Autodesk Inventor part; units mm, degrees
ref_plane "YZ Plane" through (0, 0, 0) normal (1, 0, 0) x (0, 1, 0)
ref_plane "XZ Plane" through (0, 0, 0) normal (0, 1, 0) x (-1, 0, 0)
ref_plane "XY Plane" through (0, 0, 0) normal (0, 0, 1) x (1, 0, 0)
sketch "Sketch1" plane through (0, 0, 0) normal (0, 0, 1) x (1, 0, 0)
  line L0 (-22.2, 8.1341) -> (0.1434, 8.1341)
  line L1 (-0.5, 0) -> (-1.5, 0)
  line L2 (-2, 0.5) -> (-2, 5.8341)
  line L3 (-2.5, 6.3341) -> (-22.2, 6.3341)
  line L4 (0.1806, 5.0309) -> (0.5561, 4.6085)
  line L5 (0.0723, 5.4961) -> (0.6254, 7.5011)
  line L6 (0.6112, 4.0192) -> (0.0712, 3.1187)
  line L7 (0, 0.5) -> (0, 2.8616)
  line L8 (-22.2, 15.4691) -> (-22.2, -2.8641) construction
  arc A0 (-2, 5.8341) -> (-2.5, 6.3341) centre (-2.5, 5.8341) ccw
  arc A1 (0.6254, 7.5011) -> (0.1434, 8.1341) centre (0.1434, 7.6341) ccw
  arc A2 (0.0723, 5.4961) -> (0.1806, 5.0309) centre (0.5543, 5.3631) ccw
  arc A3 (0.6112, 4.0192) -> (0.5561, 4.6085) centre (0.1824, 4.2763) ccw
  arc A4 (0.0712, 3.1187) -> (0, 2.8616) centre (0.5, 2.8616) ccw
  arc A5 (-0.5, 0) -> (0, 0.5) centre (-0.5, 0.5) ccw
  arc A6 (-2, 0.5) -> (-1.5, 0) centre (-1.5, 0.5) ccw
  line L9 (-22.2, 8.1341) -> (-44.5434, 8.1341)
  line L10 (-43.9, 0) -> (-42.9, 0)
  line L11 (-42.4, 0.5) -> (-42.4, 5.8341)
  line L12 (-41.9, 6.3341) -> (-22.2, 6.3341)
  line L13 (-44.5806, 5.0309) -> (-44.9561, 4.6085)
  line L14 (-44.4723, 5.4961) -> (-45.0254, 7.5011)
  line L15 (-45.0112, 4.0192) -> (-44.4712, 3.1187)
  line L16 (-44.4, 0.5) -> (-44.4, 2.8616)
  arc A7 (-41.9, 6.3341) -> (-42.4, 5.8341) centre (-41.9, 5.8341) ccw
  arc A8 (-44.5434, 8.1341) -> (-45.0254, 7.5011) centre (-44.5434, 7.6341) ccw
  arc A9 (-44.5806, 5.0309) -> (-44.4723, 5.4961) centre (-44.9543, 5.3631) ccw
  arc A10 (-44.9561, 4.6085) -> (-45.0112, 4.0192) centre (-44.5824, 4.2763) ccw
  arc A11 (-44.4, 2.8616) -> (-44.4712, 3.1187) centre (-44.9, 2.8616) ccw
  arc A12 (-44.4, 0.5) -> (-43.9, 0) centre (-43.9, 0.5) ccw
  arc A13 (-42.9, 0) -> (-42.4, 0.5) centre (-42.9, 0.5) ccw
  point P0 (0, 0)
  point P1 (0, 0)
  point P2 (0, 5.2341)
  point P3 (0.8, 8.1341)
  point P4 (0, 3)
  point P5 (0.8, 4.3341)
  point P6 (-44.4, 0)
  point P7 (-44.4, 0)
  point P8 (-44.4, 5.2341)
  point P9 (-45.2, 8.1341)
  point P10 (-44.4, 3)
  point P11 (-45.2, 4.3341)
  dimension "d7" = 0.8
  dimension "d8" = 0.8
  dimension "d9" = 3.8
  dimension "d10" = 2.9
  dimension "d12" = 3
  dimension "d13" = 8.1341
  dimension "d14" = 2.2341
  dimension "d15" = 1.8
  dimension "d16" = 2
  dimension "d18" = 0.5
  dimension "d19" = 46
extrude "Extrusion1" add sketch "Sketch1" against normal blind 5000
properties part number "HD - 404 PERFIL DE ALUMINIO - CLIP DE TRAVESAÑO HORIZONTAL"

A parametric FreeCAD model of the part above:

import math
import FreeCAD as App
import Part
import Sketcher

V = App.Vector
Q = App.Units.Quantity

doc = App.newDocument("Part")
params = doc.addObject("Spreadsheet::Sheet", "Params")
for row, (alias, value) in enumerate([
    ("sketch1_radius", "0.5 mm"),
    ("sketch1_width", "39.4 mm"),
    ("sketch1_length", "2.08 mm"),
    ("sketch1_length2", "1.05 mm"),
    ("pad1_length", "5000 mm"),
], start=1):
    params.set(f"A{row}", alias)
    params.set(f"B{row}", "=" + value)
    params.setAlias(f"B{row}", alias)

body = doc.addObject("PartDesign::Body", "Body")

sketch1 = doc.addObject("Sketcher::SketchObject", "Sketch")
body.addObject(sketch1)
sketch1.AttachmentSupport = (doc.XY_Plane, [""])
sketch1.MapMode = "FlatFace"
sketch1.addGeometry([
    Part.LineSegment(V(0.14, 8.13, 0), V(-44.54, 8.13, 0)),
    Part.ArcOfCircle(Part.Circle(V(-44.54, 7.63, 0), V(0, 0, 1), 0.5), math.radians(90), math.radians(195)),
    Part.LineSegment(V(-45.03, 7.5, 0), V(-44.47, 5.5, 0)),
    Part.ArcOfCircle(Part.Circle(V(-44.95, 5.36, 0), V(0, 0, 1), 0.5), math.radians(-42), math.radians(15)),
    Part.LineSegment(V(-44.58, 5.03, 0), V(-44.96, 4.61, 0)),
    Part.ArcOfCircle(Part.Circle(V(-44.58, 4.28, 0), V(0, 0, 1), 0.5), math.radians(138), math.radians(211)),
    Part.LineSegment(V(-45.01, 4.02, 0), V(-44.47, 3.12, 0)),
    Part.ArcOfCircle(Part.Circle(V(-44.9, 2.86, 0), V(0, 0, 1), 0.5), math.radians(0), math.radians(31)),
    Part.LineSegment(V(-44.4, 2.86, 0), V(-44.4, 0.5, 0)),
    Part.ArcOfCircle(Part.Circle(V(-43.9, 0.5, 0), V(0, 0, 1), 0.5), math.radians(180), math.radians(270)),
    Part.LineSegment(V(-43.9, 0, 0), V(-42.9, 0, 0)),
    Part.ArcOfCircle(Part.Circle(V(-42.9, 0.5, 0), V(0, 0, 1), 0.5), math.radians(-90), math.radians(0)),
    Part.LineSegment(V(-42.4, 0.5, 0), V(-42.4, 5.83, 0)),
    Part.ArcOfCircle(Part.Circle(V(-41.9, 5.83, 0), V(0, 0, 1), 0.5), math.radians(90), math.radians(180)),
    Part.LineSegment(V(-41.9, 6.33, 0), V(-2.5, 6.33, 0)),
    Part.ArcOfCircle(Part.Circle(V(-2.5, 5.83, 0), V(0, 0, 1), 0.5), math.radians(0), math.radians(90)),
    Part.LineSegment(V(-2, 5.83, 0), V(-2, 0.5, 0)),
    Part.ArcOfCircle(Part.Circle(V(-1.5, 0.5, 0), V(0, 0, 1), 0.5), math.radians(180), math.radians(270)),
    Part.LineSegment(V(-1.5, 0, 0), V(-0.5, 0, 0)),
    Part.ArcOfCircle(Part.Circle(V(-0.5, 0.5, 0), V(0, 0, 1), 0.5), math.radians(-90), math.radians(0)),
    Part.LineSegment(V(0, 0.5, 0), V(0, 2.86, 0)),
    Part.ArcOfCircle(Part.Circle(V(0.5, 2.86, 0), V(0, 0, 1), 0.5), math.radians(149), math.radians(180)),
    Part.LineSegment(V(0.07, 3.12, 0), V(0.61, 4.02, 0)),
    Part.ArcOfCircle(Part.Circle(V(0.18, 4.28, 0), V(0, 0, 1), 0.5), math.radians(-31), math.radians(42)),
    Part.LineSegment(V(0.56, 4.61, 0), V(0.18, 5.03, 0)),
    Part.ArcOfCircle(Part.Circle(V(0.55, 5.36, 0), V(0, 0, 1), 0.5), math.radians(165), math.radians(222)),
    Part.LineSegment(V(0.07, 5.5, 0), V(0.63, 7.5, 0)),
    Part.ArcOfCircle(Part.Circle(V(0.14, 7.63, 0), V(0, 0, 1), 0.5), math.radians(-15), math.radians(90)),
], False)
sketch1.addConstraint([
    Sketcher.Constraint("Tangent", 0, 2, 1, 1),
    Sketcher.Constraint("Tangent", 1, 2, 2, 1),
    Sketcher.Constraint("Tangent", 2, 2, 3, 2),
    Sketcher.Constraint("Tangent", 3, 1, 4, 1),
    Sketcher.Constraint("Tangent", 4, 2, 5, 1),
    Sketcher.Constraint("Tangent", 5, 2, 6, 1),
    Sketcher.Constraint("Tangent", 6, 2, 7, 2),
    Sketcher.Constraint("Tangent", 7, 1, 8, 1),
    Sketcher.Constraint("Tangent", 8, 2, 9, 1),
    Sketcher.Constraint("Tangent", 9, 2, 10, 1),
    Sketcher.Constraint("Tangent", 10, 2, 11, 1),
    Sketcher.Constraint("Tangent", 11, 2, 12, 1),
    Sketcher.Constraint("Tangent", 12, 2, 13, 2),
    Sketcher.Constraint("Tangent", 13, 1, 14, 1),
    Sketcher.Constraint("Tangent", 14, 2, 15, 2),
    Sketcher.Constraint("Tangent", 15, 1, 16, 1),
    Sketcher.Constraint("Tangent", 16, 2, 17, 1),
    Sketcher.Constraint("Tangent", 17, 2, 18, 1),
    Sketcher.Constraint("Tangent", 18, 2, 19, 1),
    Sketcher.Constraint("Tangent", 19, 2, 20, 1),
    Sketcher.Constraint("Tangent", 20, 2, 21, 2),
    Sketcher.Constraint("Tangent", 21, 1, 22, 1),
    Sketcher.Constraint("Tangent", 22, 2, 23, 1),
    Sketcher.Constraint("Tangent", 23, 2, 24, 1),
    Sketcher.Constraint("Tangent", 24, 2, 25, 2),
    Sketcher.Constraint("Tangent", 25, 1, 26, 1),
    Sketcher.Constraint("Tangent", 26, 2, 27, 1),
    Sketcher.Constraint("Tangent", 27, 2, 0, 1),
    Sketcher.Constraint("Horizontal", 0),
    Sketcher.Constraint("Vertical", 8),
    Sketcher.Constraint("Horizontal", 10),
    Sketcher.Constraint("Vertical", 12),
    Sketcher.Constraint("Horizontal", 14),
    Sketcher.Constraint("Vertical", 16),
    Sketcher.Constraint("Horizontal", 18),
    Sketcher.Constraint("Vertical", 20),
    Sketcher.Constraint("Equal", 1, 3),
    Sketcher.Constraint("Equal", 3, 5),
    Sketcher.Constraint("Equal", 5, 7),
    Sketcher.Constraint("Equal", 7, 9),
    Sketcher.Constraint("Equal", 9, 11),
    Sketcher.Constraint("Equal", 11, 13),
    Sketcher.Constraint("Equal", 13, 15),
    Sketcher.Constraint("Equal", 15, 17),
    Sketcher.Constraint("Equal", 17, 19),
    Sketcher.Constraint("Equal", 19, 21),
    Sketcher.Constraint("Equal", 21, 23),
    Sketcher.Constraint("Equal", 23, 25),
    Sketcher.Constraint("Equal", 25, 27),
    Sketcher.Constraint("PointOnObject", 9, 2, -1),
    Sketcher.Constraint("PointOnObject", 17, 2, -1),
    Sketcher.Constraint("PointOnObject", 19, 2, -2),
    Sketcher.Constraint("Horizontal", 7, 3, 21, 3),
    Sketcher.Constraint("Horizontal", 5, 3, 23, 3),
    Sketcher.Constraint("Horizontal", 3, 3, 25, 3),
    Sketcher.Constraint("Horizontal", 6, 2, 21, 1),
    Sketcher.Constraint("Horizontal", 4, 2, 23, 2),
    Sketcher.Constraint("Horizontal", 2, 2, 25, 1),
    Sketcher.Constraint("Equal", 10, 18),
    Sketcher.Constraint("Radius", 1, Q("0.5 mm")),
    Sketcher.Constraint("DistanceX", 15, 1, -1, 1, Q("2 mm")),
    Sketcher.Constraint("DistanceY", 13, 3, 1, 3, Q("1.8 mm")),
    Sketcher.Constraint("DistanceX", 14, 1, 14, 2, Q("39.4 mm")),
    Sketcher.Constraint("DistanceY", -1, 1, 0, 2, Q("8.134 mm")),
    Sketcher.Constraint("Angle", 6, Q("-59.0503 deg")),
    Sketcher.Constraint("Distance", 2, Q("2.08 mm")),
    Sketcher.Constraint("Distance", 6, Q("1.05 mm")),
    Sketcher.Constraint("DistanceX", 5, 3, 2, 2, Q("0.11 mm")),
    Sketcher.Constraint("DistanceX", 0, 2, 0, 1, Q("44.6868 mm")),
    Sketcher.Constraint("DistanceY", 8, 2, 8, 1, Q("2.3616 mm")),
])
sketch1.setExpression("Constraints[59]", "Params.sketch1_radius")
sketch1.setExpression("Constraints[62]", "Params.sketch1_width")
sketch1.setExpression("Constraints[65]", "Params.sketch1_length")
sketch1.setExpression("Constraints[66]", "Params.sketch1_length2")
pad1 = doc.addObject("PartDesign::Pad", "Pad")
body.addObject(pad1)
pad1.Profile = sketch1
pad1.setExpression("Length", "Params.pad1_length")
pad1.Reversed = True

doc.recompute()
